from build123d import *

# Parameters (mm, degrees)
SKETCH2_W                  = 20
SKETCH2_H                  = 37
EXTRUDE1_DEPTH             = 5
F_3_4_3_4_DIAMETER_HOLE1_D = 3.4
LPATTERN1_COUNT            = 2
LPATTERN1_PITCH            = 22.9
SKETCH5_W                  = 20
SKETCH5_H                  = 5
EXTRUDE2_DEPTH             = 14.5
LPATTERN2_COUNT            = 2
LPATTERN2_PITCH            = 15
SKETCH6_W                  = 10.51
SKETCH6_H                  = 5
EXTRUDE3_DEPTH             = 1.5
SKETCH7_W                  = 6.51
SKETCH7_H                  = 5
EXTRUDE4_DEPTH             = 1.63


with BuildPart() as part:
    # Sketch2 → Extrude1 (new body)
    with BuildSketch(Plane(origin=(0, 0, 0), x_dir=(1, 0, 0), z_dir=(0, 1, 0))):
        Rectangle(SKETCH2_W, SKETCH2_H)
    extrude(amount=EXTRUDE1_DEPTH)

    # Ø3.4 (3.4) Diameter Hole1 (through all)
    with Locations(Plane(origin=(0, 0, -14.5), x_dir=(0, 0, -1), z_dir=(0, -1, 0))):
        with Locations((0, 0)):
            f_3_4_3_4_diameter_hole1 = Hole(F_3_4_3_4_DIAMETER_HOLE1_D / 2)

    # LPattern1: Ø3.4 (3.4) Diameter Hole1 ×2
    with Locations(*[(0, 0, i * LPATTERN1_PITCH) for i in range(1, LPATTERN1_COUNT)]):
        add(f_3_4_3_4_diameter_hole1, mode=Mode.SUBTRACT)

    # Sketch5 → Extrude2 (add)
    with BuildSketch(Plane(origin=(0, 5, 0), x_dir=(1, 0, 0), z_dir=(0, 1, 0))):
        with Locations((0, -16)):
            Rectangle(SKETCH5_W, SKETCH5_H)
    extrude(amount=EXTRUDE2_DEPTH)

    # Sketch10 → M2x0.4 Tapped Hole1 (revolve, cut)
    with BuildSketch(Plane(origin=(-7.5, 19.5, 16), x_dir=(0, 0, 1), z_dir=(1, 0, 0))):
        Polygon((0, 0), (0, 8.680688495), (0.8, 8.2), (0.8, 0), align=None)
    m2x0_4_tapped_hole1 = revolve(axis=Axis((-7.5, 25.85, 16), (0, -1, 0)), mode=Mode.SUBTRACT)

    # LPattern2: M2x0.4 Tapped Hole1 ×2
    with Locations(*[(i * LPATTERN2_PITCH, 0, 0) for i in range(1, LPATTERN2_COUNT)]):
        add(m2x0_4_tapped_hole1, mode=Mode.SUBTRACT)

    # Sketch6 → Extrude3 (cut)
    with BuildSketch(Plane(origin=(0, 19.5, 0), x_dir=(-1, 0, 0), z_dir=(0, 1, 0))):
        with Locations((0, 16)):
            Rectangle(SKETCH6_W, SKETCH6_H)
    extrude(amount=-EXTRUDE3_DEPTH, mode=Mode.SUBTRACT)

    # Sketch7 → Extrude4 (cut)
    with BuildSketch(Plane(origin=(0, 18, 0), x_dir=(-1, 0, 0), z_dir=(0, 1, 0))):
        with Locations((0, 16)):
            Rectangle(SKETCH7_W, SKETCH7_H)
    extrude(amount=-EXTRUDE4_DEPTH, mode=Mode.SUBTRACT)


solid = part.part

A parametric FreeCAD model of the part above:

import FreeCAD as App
import Part
import Sketcher

V = App.Vector
Q = App.Units.Quantity


def add_polygon(sketch, points):
    """Adds a closed chain of lines whose ends are joined by coincident constraints."""
    first, n = sketch.GeometryCount, len(points)
    for a, b in zip(points, points[1:] + points[:1]):
        sketch.addGeometry(Part.LineSegment(App.Vector(*a, 0), App.Vector(*b, 0)), False)
    for i in range(n):
        sketch.addConstraint(Sketcher.Constraint("Coincident", first + i, 2, first + (i + 1) % n, 1))

doc = App.newDocument("Part")
body = doc.addObject("PartDesign::Body", "Body")

# Sketch on XZ plane
sketch1 = doc.addObject("Sketcher::SketchObject", "Sketch")
body.addObject(sketch1)
sketch1.AttachmentSupport = (doc.XZ_Plane, [""])
sketch1.MapMode = "FlatFace"
add_polygon(sketch1, [(-10, -18), (-10, 18), (10, 18), (10, -18)])  # lines 0-3
sketch1.addConstraint([
    Sketcher.Constraint("Vertical", 0),
    Sketcher.Constraint("Horizontal", 1),
    Sketcher.Constraint("Vertical", 2),
    Sketcher.Constraint("Horizontal", 3),
    Sketcher.Constraint("Symmetric", 0, 2, 2, 2, -1, 1),
    Sketcher.Constraint("DistanceX", 1, 1, 1, 2, Q("20 mm")),
    Sketcher.Constraint("DistanceY", 0, 1, 0, 2, Q("37 mm")),
])
pad1 = doc.addObject("PartDesign::Pad", "Pad")
body.addObject(pad1)
pad1.Profile = sketch1
pad1.Length = 5
pad1.Reversed = True

# Sketch on XZ plane
sketch2 = doc.addObject("Sketcher::SketchObject", "Sketch001")
body.addObject(sketch2)
sketch2.AttachmentSupport = (doc.XZ_Plane, [""])
sketch2.MapMode = "FlatFace"
sketch2.addGeometry(Part.Circle(V(0, -14.5, 0), V(0, 0, 1), 1.7), False)
sketch2.addConstraint([
    Sketcher.Constraint("PointOnObject", 0, 3, -2),
    Sketcher.Constraint("Diameter", 0, Q("3.4 mm")),
    Sketcher.Constraint("DistanceY", 0, 3, -1, 1, Q("14.5 mm")),
])
doc.recompute()
hole = doc.addObject("PartDesign::Hole", "Hole")
body.addObject(hole)
hole.Profile = sketch2
hole.ThreadType = "None"
hole.Diameter = 3.4
hole.DepthType = "ThroughAll"
doc.recompute()

linearpattern = doc.addObject("PartDesign::LinearPattern", "LinearPattern")
body.addObject(linearpattern)
linearpattern.Originals = [hole]
linearpattern.Direction = (doc.Z_Axis, [""])
linearpattern.Mode = "offset"
linearpattern.Offset = 22.9
linearpattern.Occurrences = 2
body.Tip = linearpattern

# Sketch on XZ plane
sketch3 = doc.addObject("Sketcher::SketchObject", "Sketch002")
body.addObject(sketch3)
sketch3.AttachmentSupport = (doc.XZ_Plane, [""])
sketch3.MapMode = "FlatFace"
sketch3.AttachmentOffset = App.Placement(V(0, 0, -5), App.Rotation())
add_polygon(sketch3, [(-10, 14), (-10, 18), (10, 18), (10, 14)])  # lines 0-3
sketch3.addConstraint([
    Sketcher.Constraint("Vertical", 0),
    Sketcher.Constraint("Horizontal", 1),
    Sketcher.Constraint("Vertical", 2),
    Sketcher.Constraint("Horizontal", 3),
    Sketcher.Constraint("DistanceX", 1, 1, 1, 2, Q("20 mm")),
    Sketcher.Constraint("DistanceY", 0, 1, 0, 2, Q("5 mm")),
    Sketcher.Constraint("DistanceX", 0, 2, -1, 1, Q("10 mm")),
    Sketcher.Constraint("DistanceY", -1, 1, 0, 2, Q("18.5 mm")),
])
pad2 = doc.addObject("PartDesign::Pad", "Pad001")
body.addObject(pad2)
pad2.Profile = sketch3
pad2.Length = 14.5
pad2.Reversed = True

# Sketch on YZ plane
sketch4 = doc.addObject("Sketcher::SketchObject", "Sketch003")
body.addObject(sketch4)
sketch4.AttachmentSupport = (doc.YZ_Plane, [""])
sketch4.MapMode = "FlatFace"
sketch4.AttachmentOffset = App.Placement(V(0, 0, -7.5), App.Rotation())
add_polygon(sketch4, [(10.8, 16), (19.5, 16), (19.5, 16.8), (11.3, 16.8)])  # lines 0-3
sketch4.addGeometry(Part.LineSegment(V(19.5, 16, 0), V(10.8, 16, 0)), True)  # axis
sketch4.addConstraint([
    Sketcher.Constraint("Horizontal", 0),
    Sketcher.Constraint("Vertical", 1),
    Sketcher.Constraint("Horizontal", 2),
    Sketcher.Constraint("Horizontal", 4),
    Sketcher.Constraint("Coincident", 4, 1, 0, 2),
    Sketcher.Constraint("Equal", 0, 4),
    Sketcher.Constraint("Angle", 3, Q("-121 deg")),
    Sketcher.Constraint("DistanceX", 2, 2, 2, 1, Q("8.2 mm")),
    Sketcher.Constraint("DistanceY", 1, 1, 1, 2, Q("0.8 mm")),
    Sketcher.Constraint("DistanceY", -1, 1, 0, 2, Q("16 mm")),
    Sketcher.Constraint("DistanceX", -1, 1, 0, 2, Q("19.5 mm")),
])
groove = doc.addObject("PartDesign::Groove", "Groove")
body.addObject(groove)
groove.Profile = sketch4
groove.ReferenceAxis = (sketch4, ["Axis0"])
groove.Angle = 360
doc.recompute()

linearpattern2 = doc.addObject("PartDesign::LinearPattern", "LinearPattern001")
body.addObject(linearpattern2)
linearpattern2.Originals = [groove]
linearpattern2.Direction = (doc.X_Axis, [""])
linearpattern2.Mode = "offset"
linearpattern2.Offset = 15
linearpattern2.Occurrences = 2
body.Tip = linearpattern2

# Sketch on XZ plane
sketch5 = doc.addObject("Sketcher::SketchObject", "Sketch004")
body.addObject(sketch5)
sketch5.AttachmentSupport = (doc.XZ_Plane, [""])
sketch5.MapMode = "FlatFace"
sketch5.AttachmentOffset = App.Placement(V(0, 0, -19.5), App.Rotation())
add_polygon(sketch5, [(5, 18), (5, 14), (-5, 14), (-5, 18)])  # lines 0-3
sketch5.addConstraint([
    Sketcher.Constraint("Vertical", 0),
    Sketcher.Constraint("Horizontal", 1),
    Sketcher.Constraint("Vertical", 2),
    Sketcher.Constraint("Horizontal", 3),
    Sketcher.Constraint("DistanceY", 0, 2, 0, 1, Q("5 mm")),
    Sketcher.Constraint("DistanceX", 1, 2, 1, 1, Q("10.51 mm")),
    Sketcher.Constraint("DistanceY", -1, 1, 0, 2, Q("13.5 mm")),
    Sketcher.Constraint("DistanceX", -1, 1, 0, 2, Q("5.255 mm")),
])
pocket1 = doc.addObject("PartDesign::Pocket", "Pocket")
body.addObject(pocket1)
pocket1.Profile = sketch5
pocket1.Length = 1.5
pocket1.Reversed = True

# Sketch on XZ plane
sketch6 = doc.addObject("Sketcher::SketchObject", "Sketch005")
body.addObject(sketch6)
sketch6.AttachmentSupport = (doc.XZ_Plane, [""])
sketch6.MapMode = "FlatFace"
sketch6.AttachmentOffset = App.Placement(V(0, 0, -18), App.Rotation())
add_polygon(sketch6, [(3, 18), (3, 14), (-3, 14), (-3, 18)])  # lines 0-3
sketch6.addConstraint([
    Sketcher.Constraint("Vertical", 0),
    Sketcher.Constraint("Horizontal", 1),
    Sketcher.Constraint("Vertical", 2),
    Sketcher.Constraint("Horizontal", 3),
    Sketcher.Constraint("DistanceY", 0, 2, 0, 1, Q("5 mm")),
    Sketcher.Constraint("DistanceX", 1, 2, 1, 1, Q("6.51 mm")),
    Sketcher.Constraint("DistanceY", -1, 1, 0, 2, Q("13.5 mm")),
    Sketcher.Constraint("DistanceX", -1, 1, 0, 2, Q("3.255 mm")),
])
pocket2 = doc.addObject("PartDesign::Pocket", "Pocket001")
body.addObject(pocket2)
pocket2.Profile = sketch6
pocket2.Length = 1.63
pocket2.Reversed = True

doc.recompute()
